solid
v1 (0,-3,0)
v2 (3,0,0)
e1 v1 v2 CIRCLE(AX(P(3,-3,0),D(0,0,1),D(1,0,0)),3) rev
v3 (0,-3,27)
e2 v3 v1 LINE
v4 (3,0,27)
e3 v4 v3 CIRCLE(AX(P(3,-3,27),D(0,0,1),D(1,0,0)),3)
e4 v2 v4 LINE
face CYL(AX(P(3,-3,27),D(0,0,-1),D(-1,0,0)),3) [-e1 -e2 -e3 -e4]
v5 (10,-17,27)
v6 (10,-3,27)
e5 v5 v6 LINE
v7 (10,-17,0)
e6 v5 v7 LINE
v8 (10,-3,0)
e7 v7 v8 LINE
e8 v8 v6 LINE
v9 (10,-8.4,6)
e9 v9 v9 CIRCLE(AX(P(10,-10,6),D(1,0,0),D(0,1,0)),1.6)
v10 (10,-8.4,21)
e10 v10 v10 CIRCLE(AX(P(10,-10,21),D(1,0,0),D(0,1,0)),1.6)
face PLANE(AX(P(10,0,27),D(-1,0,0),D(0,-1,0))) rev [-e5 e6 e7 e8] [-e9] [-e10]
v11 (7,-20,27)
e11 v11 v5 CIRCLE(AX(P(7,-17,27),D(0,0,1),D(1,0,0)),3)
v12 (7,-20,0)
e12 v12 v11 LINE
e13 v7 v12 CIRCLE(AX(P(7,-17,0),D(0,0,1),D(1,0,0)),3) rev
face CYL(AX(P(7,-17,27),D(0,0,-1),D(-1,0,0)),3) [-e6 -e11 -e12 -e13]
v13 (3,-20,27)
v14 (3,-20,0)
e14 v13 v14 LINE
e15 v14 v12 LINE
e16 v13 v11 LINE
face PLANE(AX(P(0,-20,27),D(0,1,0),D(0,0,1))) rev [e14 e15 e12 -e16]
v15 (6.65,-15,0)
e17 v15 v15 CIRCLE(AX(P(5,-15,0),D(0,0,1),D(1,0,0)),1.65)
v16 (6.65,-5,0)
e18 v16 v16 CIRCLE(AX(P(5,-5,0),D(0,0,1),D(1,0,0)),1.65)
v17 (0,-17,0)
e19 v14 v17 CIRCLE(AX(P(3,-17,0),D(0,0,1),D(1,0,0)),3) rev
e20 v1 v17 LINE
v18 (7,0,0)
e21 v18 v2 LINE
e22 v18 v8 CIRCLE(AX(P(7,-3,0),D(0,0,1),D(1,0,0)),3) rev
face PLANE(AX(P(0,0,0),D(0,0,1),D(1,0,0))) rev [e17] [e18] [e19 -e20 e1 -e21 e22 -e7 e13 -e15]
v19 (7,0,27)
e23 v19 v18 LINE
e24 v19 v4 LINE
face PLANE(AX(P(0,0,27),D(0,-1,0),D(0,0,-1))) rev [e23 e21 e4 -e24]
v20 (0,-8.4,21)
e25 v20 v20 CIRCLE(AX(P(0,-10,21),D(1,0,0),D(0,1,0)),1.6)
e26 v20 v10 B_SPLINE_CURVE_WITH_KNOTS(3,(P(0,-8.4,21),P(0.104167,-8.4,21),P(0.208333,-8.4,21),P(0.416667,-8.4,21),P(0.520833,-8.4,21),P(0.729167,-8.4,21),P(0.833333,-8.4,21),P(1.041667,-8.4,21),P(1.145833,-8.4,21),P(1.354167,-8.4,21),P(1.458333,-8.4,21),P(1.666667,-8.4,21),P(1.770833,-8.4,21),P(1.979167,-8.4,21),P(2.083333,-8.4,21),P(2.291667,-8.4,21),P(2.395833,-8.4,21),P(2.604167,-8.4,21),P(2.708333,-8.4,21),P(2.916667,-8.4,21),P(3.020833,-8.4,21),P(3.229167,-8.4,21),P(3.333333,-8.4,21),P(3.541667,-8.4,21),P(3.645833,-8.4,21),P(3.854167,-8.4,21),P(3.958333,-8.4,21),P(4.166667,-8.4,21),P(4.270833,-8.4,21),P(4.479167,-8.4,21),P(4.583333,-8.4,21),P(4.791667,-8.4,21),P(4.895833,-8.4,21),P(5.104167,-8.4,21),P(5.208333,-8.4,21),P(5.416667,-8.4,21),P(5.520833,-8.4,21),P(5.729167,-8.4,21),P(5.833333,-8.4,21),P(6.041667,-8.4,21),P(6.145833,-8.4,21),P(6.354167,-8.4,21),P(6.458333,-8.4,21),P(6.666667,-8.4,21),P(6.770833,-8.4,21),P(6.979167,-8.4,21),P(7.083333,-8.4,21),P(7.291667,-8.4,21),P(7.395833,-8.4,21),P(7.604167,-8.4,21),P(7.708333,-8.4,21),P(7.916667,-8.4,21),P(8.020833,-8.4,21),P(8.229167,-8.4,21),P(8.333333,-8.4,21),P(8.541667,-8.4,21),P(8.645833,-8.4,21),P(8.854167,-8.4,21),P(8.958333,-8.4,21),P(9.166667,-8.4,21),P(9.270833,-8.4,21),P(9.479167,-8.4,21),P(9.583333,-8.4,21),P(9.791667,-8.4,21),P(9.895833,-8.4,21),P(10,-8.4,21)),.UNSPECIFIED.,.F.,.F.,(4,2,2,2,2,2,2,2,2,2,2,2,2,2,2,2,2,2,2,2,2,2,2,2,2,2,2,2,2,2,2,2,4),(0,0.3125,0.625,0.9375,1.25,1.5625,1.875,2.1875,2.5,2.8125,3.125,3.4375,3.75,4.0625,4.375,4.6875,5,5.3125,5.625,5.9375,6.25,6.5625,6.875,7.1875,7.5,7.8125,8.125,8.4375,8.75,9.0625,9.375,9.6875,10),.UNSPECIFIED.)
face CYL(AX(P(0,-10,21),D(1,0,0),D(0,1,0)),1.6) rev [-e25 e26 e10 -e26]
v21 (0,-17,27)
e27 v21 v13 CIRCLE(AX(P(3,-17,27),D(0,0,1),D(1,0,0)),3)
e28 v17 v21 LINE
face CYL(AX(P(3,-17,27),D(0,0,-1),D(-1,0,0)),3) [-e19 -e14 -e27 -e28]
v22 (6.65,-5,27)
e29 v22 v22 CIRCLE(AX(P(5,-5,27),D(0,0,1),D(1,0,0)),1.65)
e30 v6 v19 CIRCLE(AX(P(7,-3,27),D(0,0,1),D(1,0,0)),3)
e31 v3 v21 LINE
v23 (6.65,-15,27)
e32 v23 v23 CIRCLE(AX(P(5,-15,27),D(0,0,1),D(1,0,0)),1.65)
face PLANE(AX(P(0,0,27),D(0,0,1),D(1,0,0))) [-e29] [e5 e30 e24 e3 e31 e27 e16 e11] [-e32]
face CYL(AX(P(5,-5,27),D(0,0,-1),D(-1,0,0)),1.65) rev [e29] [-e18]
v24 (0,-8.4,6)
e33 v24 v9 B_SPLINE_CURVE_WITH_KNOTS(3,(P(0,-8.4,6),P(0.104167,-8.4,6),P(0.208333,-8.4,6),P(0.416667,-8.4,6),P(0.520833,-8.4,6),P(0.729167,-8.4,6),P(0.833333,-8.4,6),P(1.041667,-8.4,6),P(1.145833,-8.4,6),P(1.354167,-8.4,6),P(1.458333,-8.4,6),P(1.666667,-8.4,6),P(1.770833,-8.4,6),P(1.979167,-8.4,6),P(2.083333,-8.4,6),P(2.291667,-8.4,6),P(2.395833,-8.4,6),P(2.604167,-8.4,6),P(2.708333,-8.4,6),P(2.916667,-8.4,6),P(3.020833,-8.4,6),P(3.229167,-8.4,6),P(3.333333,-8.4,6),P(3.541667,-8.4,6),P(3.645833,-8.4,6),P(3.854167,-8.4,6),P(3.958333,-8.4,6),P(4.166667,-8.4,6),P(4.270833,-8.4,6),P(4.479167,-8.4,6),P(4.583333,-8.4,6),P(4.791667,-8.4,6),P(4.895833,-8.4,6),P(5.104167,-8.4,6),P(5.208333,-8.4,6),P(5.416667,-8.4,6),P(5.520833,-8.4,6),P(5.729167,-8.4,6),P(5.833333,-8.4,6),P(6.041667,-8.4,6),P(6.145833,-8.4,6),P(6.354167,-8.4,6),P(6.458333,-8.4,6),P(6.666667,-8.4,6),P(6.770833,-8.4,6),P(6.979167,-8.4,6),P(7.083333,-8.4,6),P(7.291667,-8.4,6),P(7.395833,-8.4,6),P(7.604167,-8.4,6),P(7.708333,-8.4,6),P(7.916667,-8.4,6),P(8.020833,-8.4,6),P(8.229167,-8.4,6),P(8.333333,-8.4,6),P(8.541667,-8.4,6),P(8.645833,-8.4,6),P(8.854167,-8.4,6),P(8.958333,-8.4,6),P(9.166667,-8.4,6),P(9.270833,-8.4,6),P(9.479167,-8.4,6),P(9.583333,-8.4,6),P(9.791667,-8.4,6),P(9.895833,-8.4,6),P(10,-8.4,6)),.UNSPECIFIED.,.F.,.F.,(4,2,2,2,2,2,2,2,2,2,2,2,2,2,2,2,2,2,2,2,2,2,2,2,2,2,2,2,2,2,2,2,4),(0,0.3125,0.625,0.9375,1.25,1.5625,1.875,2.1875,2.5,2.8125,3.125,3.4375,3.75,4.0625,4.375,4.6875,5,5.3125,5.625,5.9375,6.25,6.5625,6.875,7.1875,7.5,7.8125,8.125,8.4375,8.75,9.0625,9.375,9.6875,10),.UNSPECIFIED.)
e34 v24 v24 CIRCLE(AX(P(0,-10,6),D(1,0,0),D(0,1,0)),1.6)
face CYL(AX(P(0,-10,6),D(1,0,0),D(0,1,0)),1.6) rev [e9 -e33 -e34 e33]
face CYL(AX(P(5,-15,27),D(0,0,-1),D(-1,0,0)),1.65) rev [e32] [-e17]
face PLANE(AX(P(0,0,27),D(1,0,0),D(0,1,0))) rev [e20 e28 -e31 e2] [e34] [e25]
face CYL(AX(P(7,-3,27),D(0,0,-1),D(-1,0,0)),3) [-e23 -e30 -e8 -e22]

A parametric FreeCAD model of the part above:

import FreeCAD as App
import Part
import Sketcher
from FreeCAD import Vector


def edges_at(feature, points):
    """Names of the edges that pass closest to the given points."""
    edges = feature.Shape.Edges
    near = lambda p: min(range(len(edges)), key=lambda i: edges[i].distToShape(Part.Vertex(*p))[0])
    return sorted({f"Edge{near(p) + 1}" for p in points})

doc = App.newDocument("Part")
body = doc.addObject("PartDesign::Body", "Body")

# Sketch on XY plane
sketch1 = doc.addObject("Sketcher::SketchObject", "Sketch")
body.addObject(sketch1)
sketch1.AttachmentSupport = (doc.XY_Plane, [""])
sketch1.MapMode = "FlatFace"
sketch1.addGeometry([
    Part.LineSegment(Vector(0, 0, 0), Vector(0, -20, 0)),  # 0
    Part.LineSegment(Vector(0, -20, 0), Vector(10, -20, 0)),  # 1
    Part.LineSegment(Vector(10, -20, 0), Vector(10, 0, 0)),  # 2
    Part.LineSegment(Vector(10, 0, 0), Vector(0, 0, 0)),  # 3
    Part.Circle(Vector(5, -15, 0), Vector(0, 0, 1), 1.65),  # 4
    Part.Circle(Vector(5, -5, 0), Vector(0, 0, 1), 1.65),  # 5
], False)
sketch1.addConstraint([
    Sketcher.Constraint("Coincident", 0, 2, 1, 1),
    Sketcher.Constraint("Coincident", 1, 2, 2, 1),
    Sketcher.Constraint("Coincident", 2, 2, 3, 1),
    Sketcher.Constraint("Coincident", 3, 2, 0, 1),
    Sketcher.Constraint("Vertical", 0),
    Sketcher.Constraint("Horizontal", 1),
    Sketcher.Constraint("Vertical", 2),
    Sketcher.Constraint("Horizontal", 3),
    Sketcher.Constraint("Coincident", 3, 2, -1, 1),
    Sketcher.Constraint("Equal", 4, 5),
    Sketcher.Constraint("Vertical", 4, 3, 5, 3),
    Sketcher.Constraint("Diameter", 4, 3.3),
    Sketcher.Constraint("DistanceX", 1, 1, 1, 2, 10.0),
    Sketcher.Constraint("DistanceY", 0, 2, 0, 1, 20.0),
    Sketcher.Constraint("DistanceX", -1, 1, 4, 3, 5.0),
    Sketcher.Constraint("DistanceY", 4, 3, -1, 1, 15.0),
    Sketcher.Constraint("DistanceY", 5, 3, -1, 1, 5.0),
])
pad1 = doc.addObject("PartDesign::Pad", "Pad")
body.addObject(pad1)
pad1.Profile = sketch1
pad1.Length = 27
doc.recompute()

fillet = doc.addObject("PartDesign::Fillet", "Fillet")
body.addObject(fillet)
fillet.Base = (pad1, edges_at(pad1, [
    (0, 0, 13.5),
    (10, 0, 13.5),
    (10, -20, 13.5),
    (0, -20, 13.5),
]))
fillet.Radius = 3

# Sketch on YZ plane
sketch2 = doc.addObject("Sketcher::SketchObject", "Sketch001")
body.addObject(sketch2)
sketch2.AttachmentSupport = (doc.YZ_Plane, [""])
sketch2.MapMode = "FlatFace"
sketch2.AttachmentOffset = App.Placement(Vector(0, 0, 10), App.Rotation())
sketch2.addGeometry([
    Part.Circle(Vector(-10, 21, 0), Vector(0, 0, 1), 1.6),
    Part.Circle(Vector(-10, 6, 0), Vector(0, 0, 1), 1.6),
], False)
sketch2.addConstraint([
    Sketcher.Constraint("Equal", 0, 1),
    Sketcher.Constraint("Vertical", 0, 3, 1, 3),
    Sketcher.Constraint("Diameter", 0, 3.2),
    Sketcher.Constraint("DistanceX", 0, 3, -1, 1, 10.0),
    Sketcher.Constraint("DistanceY", -1, 1, 0, 3, 21.0),
    Sketcher.Constraint("DistanceY", -1, 1, 1, 3, 6.0),
])
pocket1 = doc.addObject("PartDesign::Pocket", "Pocket")
body.addObject(pocket1)
pocket1.Profile = sketch2
pocket1.Type = "ThroughAll"

doc.recompute()
